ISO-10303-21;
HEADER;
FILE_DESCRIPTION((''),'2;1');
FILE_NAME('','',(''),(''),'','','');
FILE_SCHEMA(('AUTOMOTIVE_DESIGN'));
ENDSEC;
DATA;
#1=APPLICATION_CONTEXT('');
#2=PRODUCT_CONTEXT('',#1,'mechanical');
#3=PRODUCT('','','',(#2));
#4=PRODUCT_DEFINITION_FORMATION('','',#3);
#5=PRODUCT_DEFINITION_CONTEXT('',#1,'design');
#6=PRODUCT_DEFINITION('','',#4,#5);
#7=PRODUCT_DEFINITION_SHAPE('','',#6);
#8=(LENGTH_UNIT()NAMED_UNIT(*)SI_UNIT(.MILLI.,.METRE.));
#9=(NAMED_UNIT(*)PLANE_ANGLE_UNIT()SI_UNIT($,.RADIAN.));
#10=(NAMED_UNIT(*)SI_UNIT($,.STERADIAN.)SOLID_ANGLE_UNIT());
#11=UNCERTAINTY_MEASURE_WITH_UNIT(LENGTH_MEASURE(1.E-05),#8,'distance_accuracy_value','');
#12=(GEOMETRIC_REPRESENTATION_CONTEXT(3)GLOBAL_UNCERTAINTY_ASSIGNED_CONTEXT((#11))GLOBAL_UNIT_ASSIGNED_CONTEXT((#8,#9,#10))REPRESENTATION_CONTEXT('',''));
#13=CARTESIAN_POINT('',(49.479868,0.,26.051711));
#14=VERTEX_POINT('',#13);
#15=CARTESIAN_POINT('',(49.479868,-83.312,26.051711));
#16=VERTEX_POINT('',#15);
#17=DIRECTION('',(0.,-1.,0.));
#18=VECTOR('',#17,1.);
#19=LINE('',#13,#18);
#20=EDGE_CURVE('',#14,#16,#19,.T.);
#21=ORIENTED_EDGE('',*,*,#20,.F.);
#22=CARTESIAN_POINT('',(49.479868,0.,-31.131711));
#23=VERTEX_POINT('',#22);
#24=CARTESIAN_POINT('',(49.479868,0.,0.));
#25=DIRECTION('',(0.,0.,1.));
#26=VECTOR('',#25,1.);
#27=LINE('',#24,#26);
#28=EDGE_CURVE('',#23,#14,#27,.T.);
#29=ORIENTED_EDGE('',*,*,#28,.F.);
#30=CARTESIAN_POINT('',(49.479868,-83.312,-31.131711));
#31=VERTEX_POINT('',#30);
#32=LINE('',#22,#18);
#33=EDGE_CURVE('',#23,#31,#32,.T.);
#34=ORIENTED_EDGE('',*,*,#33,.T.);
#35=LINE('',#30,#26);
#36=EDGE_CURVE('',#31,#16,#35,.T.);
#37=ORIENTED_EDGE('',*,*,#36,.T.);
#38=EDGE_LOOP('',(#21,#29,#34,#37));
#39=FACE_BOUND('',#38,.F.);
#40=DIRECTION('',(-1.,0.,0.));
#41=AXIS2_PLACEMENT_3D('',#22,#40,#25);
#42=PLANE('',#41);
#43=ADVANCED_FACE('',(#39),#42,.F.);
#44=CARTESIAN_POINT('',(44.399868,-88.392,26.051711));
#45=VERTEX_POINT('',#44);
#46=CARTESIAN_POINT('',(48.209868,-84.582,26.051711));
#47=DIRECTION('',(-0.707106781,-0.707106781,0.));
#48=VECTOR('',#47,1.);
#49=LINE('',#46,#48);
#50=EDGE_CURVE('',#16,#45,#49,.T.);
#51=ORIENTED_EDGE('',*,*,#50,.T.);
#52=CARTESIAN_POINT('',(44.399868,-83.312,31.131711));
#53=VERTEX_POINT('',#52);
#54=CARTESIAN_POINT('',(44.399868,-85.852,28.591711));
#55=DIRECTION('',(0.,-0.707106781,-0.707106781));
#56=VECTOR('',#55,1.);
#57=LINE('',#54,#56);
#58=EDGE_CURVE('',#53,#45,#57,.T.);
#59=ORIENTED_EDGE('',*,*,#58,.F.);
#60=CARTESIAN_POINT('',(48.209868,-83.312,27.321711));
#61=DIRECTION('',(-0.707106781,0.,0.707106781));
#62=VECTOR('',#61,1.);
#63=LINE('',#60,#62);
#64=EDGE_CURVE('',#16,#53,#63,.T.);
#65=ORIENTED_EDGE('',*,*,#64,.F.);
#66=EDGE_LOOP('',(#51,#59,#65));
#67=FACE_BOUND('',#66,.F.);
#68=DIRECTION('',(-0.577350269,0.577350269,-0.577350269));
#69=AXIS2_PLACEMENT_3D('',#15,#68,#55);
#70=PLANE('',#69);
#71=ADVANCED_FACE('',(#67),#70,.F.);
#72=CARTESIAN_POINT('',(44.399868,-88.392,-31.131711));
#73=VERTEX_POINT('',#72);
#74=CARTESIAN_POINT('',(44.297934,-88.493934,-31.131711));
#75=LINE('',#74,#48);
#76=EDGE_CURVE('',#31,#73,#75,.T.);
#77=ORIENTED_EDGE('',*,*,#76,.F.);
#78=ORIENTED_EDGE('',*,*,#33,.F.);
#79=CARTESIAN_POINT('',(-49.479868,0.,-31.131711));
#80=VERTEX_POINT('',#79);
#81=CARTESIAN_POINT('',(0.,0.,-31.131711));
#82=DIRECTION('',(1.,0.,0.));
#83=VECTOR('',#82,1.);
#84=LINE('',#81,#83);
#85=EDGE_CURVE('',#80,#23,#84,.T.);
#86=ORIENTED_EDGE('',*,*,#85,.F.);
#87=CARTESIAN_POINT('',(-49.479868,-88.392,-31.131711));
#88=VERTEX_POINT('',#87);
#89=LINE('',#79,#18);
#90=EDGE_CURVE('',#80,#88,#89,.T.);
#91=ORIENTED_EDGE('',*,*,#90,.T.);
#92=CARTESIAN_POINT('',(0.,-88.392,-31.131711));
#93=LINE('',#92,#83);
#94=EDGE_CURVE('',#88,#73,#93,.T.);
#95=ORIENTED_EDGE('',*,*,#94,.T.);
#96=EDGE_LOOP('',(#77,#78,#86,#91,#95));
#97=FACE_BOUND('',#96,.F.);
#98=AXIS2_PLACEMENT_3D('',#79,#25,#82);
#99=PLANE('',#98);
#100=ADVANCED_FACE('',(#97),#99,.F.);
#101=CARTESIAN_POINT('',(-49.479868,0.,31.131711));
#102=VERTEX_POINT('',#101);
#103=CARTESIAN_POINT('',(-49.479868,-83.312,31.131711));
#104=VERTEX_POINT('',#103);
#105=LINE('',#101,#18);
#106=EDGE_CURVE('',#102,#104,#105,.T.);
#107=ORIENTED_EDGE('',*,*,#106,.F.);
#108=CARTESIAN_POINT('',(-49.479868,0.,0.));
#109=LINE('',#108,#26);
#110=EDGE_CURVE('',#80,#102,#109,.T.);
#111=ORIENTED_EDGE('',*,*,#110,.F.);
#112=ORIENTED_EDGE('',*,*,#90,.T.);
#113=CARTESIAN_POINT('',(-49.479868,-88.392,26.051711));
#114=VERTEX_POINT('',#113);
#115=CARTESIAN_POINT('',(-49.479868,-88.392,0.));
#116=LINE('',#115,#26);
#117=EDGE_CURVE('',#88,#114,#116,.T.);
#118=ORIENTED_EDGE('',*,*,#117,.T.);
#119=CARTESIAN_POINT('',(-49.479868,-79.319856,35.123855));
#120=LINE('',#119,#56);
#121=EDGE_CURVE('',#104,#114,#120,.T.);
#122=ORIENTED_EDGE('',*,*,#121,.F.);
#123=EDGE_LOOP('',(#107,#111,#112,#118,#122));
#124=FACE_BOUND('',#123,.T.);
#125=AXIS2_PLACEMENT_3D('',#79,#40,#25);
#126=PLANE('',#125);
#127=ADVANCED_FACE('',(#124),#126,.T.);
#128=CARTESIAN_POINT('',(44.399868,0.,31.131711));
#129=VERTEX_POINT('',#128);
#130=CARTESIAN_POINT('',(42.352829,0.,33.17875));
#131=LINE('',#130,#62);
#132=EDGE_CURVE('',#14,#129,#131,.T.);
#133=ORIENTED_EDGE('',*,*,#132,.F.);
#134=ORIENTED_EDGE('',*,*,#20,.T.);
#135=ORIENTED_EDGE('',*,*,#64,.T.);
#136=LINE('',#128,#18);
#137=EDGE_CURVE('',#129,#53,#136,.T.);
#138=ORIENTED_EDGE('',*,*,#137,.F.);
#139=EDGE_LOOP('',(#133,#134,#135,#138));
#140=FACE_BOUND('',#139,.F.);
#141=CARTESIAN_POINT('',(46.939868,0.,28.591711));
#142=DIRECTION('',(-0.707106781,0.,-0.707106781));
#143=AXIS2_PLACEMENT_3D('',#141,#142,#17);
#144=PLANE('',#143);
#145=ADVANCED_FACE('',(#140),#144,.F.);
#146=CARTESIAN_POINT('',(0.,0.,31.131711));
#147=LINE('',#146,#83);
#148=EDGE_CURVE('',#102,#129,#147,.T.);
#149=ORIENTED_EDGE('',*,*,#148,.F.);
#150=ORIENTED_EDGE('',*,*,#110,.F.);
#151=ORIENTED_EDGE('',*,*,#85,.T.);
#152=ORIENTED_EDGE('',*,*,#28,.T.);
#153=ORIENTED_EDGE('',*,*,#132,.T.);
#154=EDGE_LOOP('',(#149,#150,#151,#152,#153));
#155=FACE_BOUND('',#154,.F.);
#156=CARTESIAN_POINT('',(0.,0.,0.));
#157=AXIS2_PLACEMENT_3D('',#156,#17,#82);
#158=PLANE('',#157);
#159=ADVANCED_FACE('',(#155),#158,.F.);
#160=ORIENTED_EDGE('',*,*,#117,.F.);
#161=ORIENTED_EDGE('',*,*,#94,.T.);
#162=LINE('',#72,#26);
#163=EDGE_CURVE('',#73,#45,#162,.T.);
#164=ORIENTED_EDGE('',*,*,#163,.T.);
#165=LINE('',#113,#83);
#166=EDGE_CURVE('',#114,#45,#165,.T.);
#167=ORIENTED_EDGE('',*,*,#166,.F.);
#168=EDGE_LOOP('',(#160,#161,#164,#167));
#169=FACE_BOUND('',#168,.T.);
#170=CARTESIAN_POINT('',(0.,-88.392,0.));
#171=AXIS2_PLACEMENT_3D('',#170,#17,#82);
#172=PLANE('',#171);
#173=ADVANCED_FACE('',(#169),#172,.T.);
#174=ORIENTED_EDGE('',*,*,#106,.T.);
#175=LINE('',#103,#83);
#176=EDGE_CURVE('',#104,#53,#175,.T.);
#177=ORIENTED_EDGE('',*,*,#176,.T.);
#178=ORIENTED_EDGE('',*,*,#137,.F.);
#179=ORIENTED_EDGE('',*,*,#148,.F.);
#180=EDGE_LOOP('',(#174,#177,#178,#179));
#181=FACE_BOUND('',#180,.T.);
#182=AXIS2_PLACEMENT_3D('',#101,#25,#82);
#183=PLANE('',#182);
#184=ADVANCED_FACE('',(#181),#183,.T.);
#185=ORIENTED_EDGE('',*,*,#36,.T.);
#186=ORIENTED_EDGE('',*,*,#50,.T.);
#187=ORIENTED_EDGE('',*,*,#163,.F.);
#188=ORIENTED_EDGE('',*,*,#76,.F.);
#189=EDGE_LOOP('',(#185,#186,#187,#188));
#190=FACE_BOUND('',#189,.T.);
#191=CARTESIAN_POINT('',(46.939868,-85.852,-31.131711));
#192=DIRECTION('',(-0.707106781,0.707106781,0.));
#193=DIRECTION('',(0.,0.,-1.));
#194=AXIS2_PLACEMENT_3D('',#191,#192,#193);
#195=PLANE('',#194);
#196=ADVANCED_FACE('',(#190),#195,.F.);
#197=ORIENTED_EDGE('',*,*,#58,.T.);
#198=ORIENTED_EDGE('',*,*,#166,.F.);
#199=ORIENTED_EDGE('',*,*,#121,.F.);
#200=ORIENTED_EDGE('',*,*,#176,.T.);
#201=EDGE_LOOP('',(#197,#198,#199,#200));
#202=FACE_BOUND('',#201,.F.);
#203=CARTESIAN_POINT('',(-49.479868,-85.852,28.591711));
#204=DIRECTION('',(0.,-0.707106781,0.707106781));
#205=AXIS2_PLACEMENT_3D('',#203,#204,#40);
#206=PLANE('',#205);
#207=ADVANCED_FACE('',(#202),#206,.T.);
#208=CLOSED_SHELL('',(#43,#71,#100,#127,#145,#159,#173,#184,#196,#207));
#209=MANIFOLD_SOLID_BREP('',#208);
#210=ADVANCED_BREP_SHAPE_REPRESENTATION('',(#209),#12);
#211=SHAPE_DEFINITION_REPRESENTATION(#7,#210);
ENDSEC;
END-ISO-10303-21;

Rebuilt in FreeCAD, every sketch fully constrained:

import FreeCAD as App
import Part
import Sketcher

V = App.Vector
Q = App.Units.Quantity


def edges_at(feature, points):
    """Names of the edges that pass closest to the given points."""
    edges = feature.Shape.Edges
    near = lambda p: min(range(len(edges)), key=lambda i: edges[i].distToShape(Part.Vertex(*p))[0])
    return sorted({f"Edge{near(p) + 1}" for p in points})


def add_polygon(sketch, points):
    """Adds a closed chain of lines whose ends are joined by coincident constraints."""
    first, n = sketch.GeometryCount, len(points)
    for a, b in zip(points, points[1:] + points[:1]):
        sketch.addGeometry(Part.LineSegment(App.Vector(*a, 0), App.Vector(*b, 0)), False)
    for i in range(n):
        sketch.addConstraint(Sketcher.Constraint("Coincident", first + i, 2, first + (i + 1) % n, 1))

doc = App.newDocument("Part")
body = doc.addObject("PartDesign::Body", "Body")

# Sketch on XZ plane
sketch1 = body.newObject("Sketcher::SketchObject", "Sketch")
sketch1.AttachmentSupport = (doc.getObject("XZ_Plane"), [""])
sketch1.MapMode = "FlatFace"
add_polygon(sketch1, [(-49, 31), (-49, -31), (49, -31), (49, 31)])  # lines 0-3
sketch1.addConstraint(Sketcher.Constraint("Vertical", 0))
sketch1.addConstraint(Sketcher.Constraint("Horizontal", 1))
sketch1.addConstraint(Sketcher.Constraint("Vertical", 2))
sketch1.addConstraint(Sketcher.Constraint("Horizontal", 3))
sketch1.addConstraint(Sketcher.Constraint("Symmetric", 0, 2, 2, 2, -1, 1))
sketch1.addConstraint(Sketcher.Constraint("DistanceY", 0, 2, 0, 1, Q("62.263422 mm")))
sketch1.addConstraint(Sketcher.Constraint("DistanceX", 1, 1, 1, 2, Q("98.959736 mm")))
pad1 = body.newObject("PartDesign::Pad", "Pad")
pad1.Profile = sketch1
pad1.Length = Q("3.48 in")
doc.recompute()

chamfer = body.newObject("PartDesign::Chamfer", "Chamfer")
chamfer.Base = (pad1, edges_at(pad1, [(0, -88.392, 31.132), (49.48, -44.196, 31.132), (49.48, -88.392, 0)]))
chamfer.Size = Q("0.2 in")

doc.recompute()
